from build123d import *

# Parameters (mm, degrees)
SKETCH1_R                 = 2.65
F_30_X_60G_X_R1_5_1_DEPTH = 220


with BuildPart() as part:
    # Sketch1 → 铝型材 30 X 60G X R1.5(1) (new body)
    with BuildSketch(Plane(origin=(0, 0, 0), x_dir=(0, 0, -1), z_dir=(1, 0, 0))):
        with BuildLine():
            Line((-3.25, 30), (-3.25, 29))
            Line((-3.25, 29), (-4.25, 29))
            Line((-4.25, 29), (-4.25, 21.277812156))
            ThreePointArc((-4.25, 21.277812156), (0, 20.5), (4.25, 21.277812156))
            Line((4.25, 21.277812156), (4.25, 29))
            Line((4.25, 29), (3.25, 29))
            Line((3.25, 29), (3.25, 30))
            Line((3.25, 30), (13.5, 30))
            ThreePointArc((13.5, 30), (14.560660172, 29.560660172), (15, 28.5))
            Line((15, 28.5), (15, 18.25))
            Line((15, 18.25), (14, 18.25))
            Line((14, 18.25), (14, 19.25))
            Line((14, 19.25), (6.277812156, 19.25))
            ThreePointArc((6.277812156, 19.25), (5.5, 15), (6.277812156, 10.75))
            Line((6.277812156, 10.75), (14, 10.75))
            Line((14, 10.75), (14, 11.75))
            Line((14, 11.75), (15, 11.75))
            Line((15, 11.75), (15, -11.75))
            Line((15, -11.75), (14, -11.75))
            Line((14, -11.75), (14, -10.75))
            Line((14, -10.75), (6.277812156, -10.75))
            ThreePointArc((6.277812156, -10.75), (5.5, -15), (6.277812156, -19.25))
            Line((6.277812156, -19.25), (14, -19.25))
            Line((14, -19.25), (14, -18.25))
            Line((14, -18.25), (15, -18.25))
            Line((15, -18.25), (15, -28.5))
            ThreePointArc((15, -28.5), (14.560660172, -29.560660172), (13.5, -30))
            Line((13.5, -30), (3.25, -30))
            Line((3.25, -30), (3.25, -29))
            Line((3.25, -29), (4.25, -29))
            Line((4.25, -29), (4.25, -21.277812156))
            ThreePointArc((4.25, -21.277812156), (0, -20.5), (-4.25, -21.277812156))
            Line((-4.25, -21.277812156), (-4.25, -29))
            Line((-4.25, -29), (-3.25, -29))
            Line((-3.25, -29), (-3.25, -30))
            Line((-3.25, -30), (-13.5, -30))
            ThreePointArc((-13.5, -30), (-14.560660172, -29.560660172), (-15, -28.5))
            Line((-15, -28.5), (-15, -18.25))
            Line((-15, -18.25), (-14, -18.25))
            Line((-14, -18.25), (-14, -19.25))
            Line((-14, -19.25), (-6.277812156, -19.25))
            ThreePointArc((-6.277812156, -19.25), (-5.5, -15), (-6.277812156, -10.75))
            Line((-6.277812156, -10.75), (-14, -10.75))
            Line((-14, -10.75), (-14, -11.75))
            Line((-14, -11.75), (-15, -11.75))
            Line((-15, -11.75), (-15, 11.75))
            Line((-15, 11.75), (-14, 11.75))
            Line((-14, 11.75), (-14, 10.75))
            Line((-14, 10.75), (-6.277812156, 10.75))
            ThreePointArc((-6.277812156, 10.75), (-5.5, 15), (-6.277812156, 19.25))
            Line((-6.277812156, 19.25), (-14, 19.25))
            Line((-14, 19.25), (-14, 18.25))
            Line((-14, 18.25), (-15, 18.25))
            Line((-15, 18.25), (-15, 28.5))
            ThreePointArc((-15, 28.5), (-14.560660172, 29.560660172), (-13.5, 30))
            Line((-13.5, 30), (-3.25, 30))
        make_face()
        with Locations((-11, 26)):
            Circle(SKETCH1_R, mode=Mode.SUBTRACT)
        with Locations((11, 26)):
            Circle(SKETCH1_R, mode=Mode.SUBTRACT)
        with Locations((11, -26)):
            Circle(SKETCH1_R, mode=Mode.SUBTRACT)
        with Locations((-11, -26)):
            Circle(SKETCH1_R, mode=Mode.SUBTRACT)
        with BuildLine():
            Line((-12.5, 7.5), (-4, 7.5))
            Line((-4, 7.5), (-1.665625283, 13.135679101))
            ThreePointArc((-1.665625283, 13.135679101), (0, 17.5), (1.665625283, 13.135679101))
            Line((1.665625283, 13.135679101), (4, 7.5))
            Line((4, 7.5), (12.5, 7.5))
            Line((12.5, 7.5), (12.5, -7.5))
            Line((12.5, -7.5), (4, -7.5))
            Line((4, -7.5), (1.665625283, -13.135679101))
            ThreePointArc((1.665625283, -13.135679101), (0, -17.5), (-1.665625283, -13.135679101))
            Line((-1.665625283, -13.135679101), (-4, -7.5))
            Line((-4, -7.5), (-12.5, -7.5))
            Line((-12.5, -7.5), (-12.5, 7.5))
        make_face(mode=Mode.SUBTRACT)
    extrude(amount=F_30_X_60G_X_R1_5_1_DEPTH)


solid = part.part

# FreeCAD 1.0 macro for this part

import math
import FreeCAD as App
import Part
import Sketcher
from FreeCAD import Vector
Q = App.Units.Quantity

doc = App.newDocument("Part")
params = doc.addObject("Spreadsheet::Sheet", "Params")
for row, (alias, value) in enumerate([
    ("sketch1_radius", "12 mm"),
    ("sketch1_diameter", "5.3 mm"),
    ("sketch1_radius2", "1.5 mm"),
    ("sketch1_radius3", "2.5 mm"),
    ("sketch1_width", "1 mm"),
    ("pad1_length", "220 mm"),
], start=1):
    params.set(f"A{row}", alias)
    params.set(f"B{row}", "=" + value)
    params.setAlias(f"B{row}", alias)

body = doc.addObject("PartDesign::Body", "Body")

# Sketch on YZ plane
sketch1 = body.newObject("Sketcher::SketchObject", "Sketch")
sketch1.AttachmentSupport = (doc.getObject("YZ_Plane"), [""])
sketch1.MapMode = "FlatFace"
sketch1.addGeometry([
    Part.LineSegment(Vector(29, 3.2, 0), Vector(30, 3.2, 0)),  # 0
    Part.LineSegment(Vector(30, 3.2, 0), Vector(30, 13.5, 0)),  # 1
    Part.ArcOfCircle(Part.Circle(Vector(28.5, 13.5, 0), Vector(0, 0, 1), 1.5), math.radians(0), math.radians(90)),  # 2
    Part.LineSegment(Vector(28.5, 15, 0), Vector(18.2, 15, 0)),  # 3
    Part.LineSegment(Vector(18.2, 15, 0), Vector(18.2, 14, 0)),  # 4
    Part.LineSegment(Vector(18.2, 14, 0), Vector(19.2, 14, 0)),  # 5
    Part.LineSegment(Vector(19.2, 14, 0), Vector(19.2, 6.3, 0)),  # 6
    Part.ArcOfCircle(Part.Circle(Vector(15, 17.5, 0), Vector(0, 0, 1), 12), math.radians(-111), math.radians(-69)),  # 7
    Part.LineSegment(Vector(10.8, 6.3, 0), Vector(10.8, 14, 0)),  # 8
    Part.LineSegment(Vector(10.8, 14, 0), Vector(11.8, 14, 0)),  # 9
    Part.LineSegment(Vector(11.8, 14, 0), Vector(11.8, 15, 0)),  # 10
    Part.LineSegment(Vector(11.8, 15, 0), Vector(-11.8, 15, 0)),  # 11
    Part.LineSegment(Vector(-11.8, 15, 0), Vector(-11.8, 14, 0)),  # 12
    Part.LineSegment(Vector(-11.8, 14, 0), Vector(-10.8, 14, 0)),  # 13
    Part.LineSegment(Vector(-10.8, 14, 0), Vector(-10.8, 6.3, 0)),  # 14
    Part.ArcOfCircle(Part.Circle(Vector(-15, 17.5, 0), Vector(0, 0, 1), 12), math.radians(-111), math.radians(-69)),  # 15
    Part.LineSegment(Vector(-19.2, 6.3, 0), Vector(-19.2, 14, 0)),  # 16
    Part.LineSegment(Vector(-19.2, 14, 0), Vector(-18.2, 14, 0)),  # 17
    Part.LineSegment(Vector(-18.2, 14, 0), Vector(-18.2, 15, 0)),  # 18
    Part.LineSegment(Vector(-18.2, 15, 0), Vector(-28.5, 15, 0)),  # 19
    Part.ArcOfCircle(Part.Circle(Vector(-28.5, 13.5, 0), Vector(0, 0, 1), 1.5), math.radians(90), math.radians(180)),  # 20
    Part.LineSegment(Vector(-30, 13.5, 0), Vector(-30, 3.2, 0)),  # 21
    Part.LineSegment(Vector(-30, 3.2, 0), Vector(-29, 3.2, 0)),  # 22
    Part.LineSegment(Vector(-29, 3.2, 0), Vector(-29, 4.2, 0)),  # 23
    Part.LineSegment(Vector(-29, 4.2, 0), Vector(-21.3, 4.2, 0)),  # 24
    Part.ArcOfCircle(Part.Circle(Vector(-32.5, 0, 0), Vector(0, 0, 1), 12), math.radians(-21), math.radians(21)),  # 25
    Part.LineSegment(Vector(-21.3, -4.2, 0), Vector(-29, -4.2, 0)),  # 26
    Part.LineSegment(Vector(-29, -4.2, 0), Vector(-29, -3.2, 0)),  # 27
    Part.LineSegment(Vector(-29, -3.2, 0), Vector(-30, -3.2, 0)),  # 28
    Part.LineSegment(Vector(-30, -3.2, 0), Vector(-30, -13.5, 0)),  # 29
    Part.ArcOfCircle(Part.Circle(Vector(-28.5, -13.5, 0), Vector(0, 0, 1), 1.5), math.radians(180), math.radians(270)),  # 30
    Part.LineSegment(Vector(-28.5, -15, 0), Vector(-18.2, -15, 0)),  # 31
    Part.LineSegment(Vector(-18.2, -15, 0), Vector(-18.2, -14, 0)),  # 32
    Part.LineSegment(Vector(-18.2, -14, 0), Vector(-19.2, -14, 0)),  # 33
    Part.LineSegment(Vector(-19.2, -14, 0), Vector(-19.2, -6.3, 0)),  # 34
    Part.ArcOfCircle(Part.Circle(Vector(-15, -17.5, 0), Vector(0, 0, 1), 12), math.radians(69), math.radians(111)),  # 35
    Part.LineSegment(Vector(-10.8, -6.3, 0), Vector(-10.8, -14, 0)),  # 36
    Part.LineSegment(Vector(-10.8, -14, 0), Vector(-11.8, -14, 0)),  # 37
    Part.LineSegment(Vector(-11.8, -14, 0), Vector(-11.8, -15, 0)),  # 38
    Part.LineSegment(Vector(-11.8, -15, 0), Vector(11.8, -15, 0)),  # 39
    Part.LineSegment(Vector(11.8, -15, 0), Vector(11.8, -14, 0)),  # 40
    Part.LineSegment(Vector(11.8, -14, 0), Vector(10.8, -14, 0)),  # 41
    Part.LineSegment(Vector(10.8, -14, 0), Vector(10.8, -6.3, 0)),  # 42
    Part.ArcOfCircle(Part.Circle(Vector(15, -17.5, 0), Vector(0, 0, 1), 12), math.radians(69), math.radians(111)),  # 43
    Part.LineSegment(Vector(19.2, -6.3, 0), Vector(19.2, -14, 0)),  # 44
    Part.LineSegment(Vector(19.2, -14, 0), Vector(18.2, -14, 0)),  # 45
    Part.LineSegment(Vector(18.2, -14, 0), Vector(18.2, -15, 0)),  # 46
    Part.LineSegment(Vector(18.2, -15, 0), Vector(28.5, -15, 0)),  # 47
    Part.ArcOfCircle(Part.Circle(Vector(28.5, -13.5, 0), Vector(0, 0, 1), 1.5), math.radians(-90), math.radians(0)),  # 48
    Part.LineSegment(Vector(30, -13.5, 0), Vector(30, -3.2, 0)),  # 49
    Part.LineSegment(Vector(30, -3.2, 0), Vector(29, -3.2, 0)),  # 50
    Part.LineSegment(Vector(29, -3.2, 0), Vector(29, -4.2, 0)),  # 51
    Part.LineSegment(Vector(29, -4.2, 0), Vector(21.3, -4.2, 0)),  # 52
    Part.ArcOfCircle(Part.Circle(Vector(32.5, 0, 0), Vector(0, 0, 1), 12), math.radians(159), math.radians(201)),  # 53
    Part.LineSegment(Vector(21.3, 4.2, 0), Vector(29, 4.2, 0)),  # 54
    Part.LineSegment(Vector(29, 4.2, 0), Vector(29, 3.2, 0)),  # 55
    Part.Circle(Vector(-26, -11, 0), Vector(0, 0, 1), 2.6),  # 56
    Part.Circle(Vector(-26, 11, 0), Vector(0, 0, 1), 2.6),  # 57
    Part.Circle(Vector(26, -11, 0), Vector(0, 0, 1), 2.6),  # 58
    Part.LineSegment(Vector(7.5, 12.5, 0), Vector(7.5, 4, 0)),  # 59
    Part.LineSegment(Vector(7.5, 4, 0), Vector(13.1, 1.7, 0)),  # 60
    Part.ArcOfCircle(Part.Circle(Vector(15, 0, 0), Vector(0, 0, 1), 2.5), math.radians(-138), math.radians(138)),  # 61
    Part.LineSegment(Vector(13.1, -1.7, 0), Vector(7.5, -4, 0)),  # 62
    Part.LineSegment(Vector(7.5, -4, 0), Vector(7.5, -12.5, 0)),  # 63
    Part.LineSegment(Vector(7.5, -12.5, 0), Vector(-7.5, -12.5, 0)),  # 64
    Part.LineSegment(Vector(-7.5, -12.5, 0), Vector(-7.5, -4, 0)),  # 65
    Part.LineSegment(Vector(-7.5, -4, 0), Vector(-13.1, -1.7, 0)),  # 66
    Part.ArcOfCircle(Part.Circle(Vector(-15, 0, 0), Vector(0, 0, 1), 2.5), math.radians(42), math.radians(318)),  # 67
    Part.LineSegment(Vector(-13.1, 1.7, 0), Vector(-7.5, 4, 0)),  # 68
    Part.LineSegment(Vector(-7.5, 4, 0), Vector(-7.5, 12.5, 0)),  # 69
    Part.LineSegment(Vector(-7.5, 12.5, 0), Vector(7.5, 12.5, 0)),  # 70
    Part.Circle(Vector(26, 11, 0), Vector(0, 0, 1), 2.6),  # 71
], False)
sketch1.addConstraint([
    Sketcher.Constraint("Coincident", 0, 2, 1, 1),
    Sketcher.Constraint("Tangent", 1, 2, 2, 1),
    Sketcher.Constraint("Tangent", 2, 2, 3, 1),
    Sketcher.Constraint("Coincident", 3, 2, 4, 1),
    Sketcher.Constraint("Coincident", 4, 2, 5, 1),
    Sketcher.Constraint("Coincident", 5, 2, 6, 1),
    Sketcher.Constraint("Coincident", 6, 2, 7, 2),
    Sketcher.Constraint("Coincident", 7, 1, 8, 1),
    Sketcher.Constraint("Coincident", 8, 2, 9, 1),
    Sketcher.Constraint("Coincident", 9, 2, 10, 1),
    Sketcher.Constraint("Coincident", 10, 2, 11, 1),
    Sketcher.Constraint("Coincident", 11, 2, 12, 1),
    Sketcher.Constraint("Coincident", 12, 2, 13, 1),
    Sketcher.Constraint("Coincident", 13, 2, 14, 1),
    Sketcher.Constraint("Coincident", 14, 2, 15, 2),
    Sketcher.Constraint("Coincident", 15, 1, 16, 1),
    Sketcher.Constraint("Coincident", 16, 2, 17, 1),
    Sketcher.Constraint("Coincident", 17, 2, 18, 1),
    Sketcher.Constraint("Coincident", 18, 2, 19, 1),
    Sketcher.Constraint("Tangent", 19, 2, 20, 1),
    Sketcher.Constraint("Tangent", 20, 2, 21, 1),
    Sketcher.Constraint("Coincident", 21, 2, 22, 1),
    Sketcher.Constraint("Coincident", 22, 2, 23, 1),
    Sketcher.Constraint("Coincident", 23, 2, 24, 1),
    Sketcher.Constraint("Coincident", 24, 2, 25, 2),
    Sketcher.Constraint("Coincident", 25, 1, 26, 1),
    Sketcher.Constraint("Coincident", 26, 2, 27, 1),
    Sketcher.Constraint("Coincident", 27, 2, 28, 1),
    Sketcher.Constraint("Coincident", 28, 2, 29, 1),
    Sketcher.Constraint("Tangent", 29, 2, 30, 1),
    Sketcher.Constraint("Tangent", 30, 2, 31, 1),
    Sketcher.Constraint("Coincident", 31, 2, 32, 1),
    Sketcher.Constraint("Coincident", 32, 2, 33, 1),
    Sketcher.Constraint("Coincident", 33, 2, 34, 1),
    Sketcher.Constraint("Coincident", 34, 2, 35, 2),
    Sketcher.Constraint("Coincident", 35, 1, 36, 1),
    Sketcher.Constraint("Coincident", 36, 2, 37, 1),
    Sketcher.Constraint("Coincident", 37, 2, 38, 1),
    Sketcher.Constraint("Coincident", 38, 2, 39, 1),
    Sketcher.Constraint("Coincident", 39, 2, 40, 1),
    Sketcher.Constraint("Coincident", 40, 2, 41, 1),
    Sketcher.Constraint("Coincident", 41, 2, 42, 1),
    Sketcher.Constraint("Coincident", 42, 2, 43, 2),
    Sketcher.Constraint("Coincident", 43, 1, 44, 1),
    Sketcher.Constraint("Coincident", 44, 2, 45, 1),
    Sketcher.Constraint("Coincident", 45, 2, 46, 1),
    Sketcher.Constraint("Coincident", 46, 2, 47, 1),
    Sketcher.Constraint("Tangent", 47, 2, 48, 1),
    Sketcher.Constraint("Tangent", 48, 2, 49, 1),
    Sketcher.Constraint("Coincident", 49, 2, 50, 1),
    Sketcher.Constraint("Coincident", 50, 2, 51, 1),
    Sketcher.Constraint("Coincident", 51, 2, 52, 1),
    Sketcher.Constraint("Coincident", 52, 2, 53, 2),
    Sketcher.Constraint("Coincident", 53, 1, 54, 1),
    Sketcher.Constraint("Coincident", 54, 2, 55, 1),
    Sketcher.Constraint("Coincident", 55, 2, 0, 1),
    Sketcher.Constraint("Coincident", 59, 2, 60, 1),
    Sketcher.Constraint("Coincident", 60, 2, 61, 2),
    Sketcher.Constraint("Coincident", 61, 1, 62, 1),
    Sketcher.Constraint("Coincident", 62, 2, 63, 1),
    Sketcher.Constraint("Coincident", 63, 2, 64, 1),
    Sketcher.Constraint("Coincident", 64, 2, 65, 1),
    Sketcher.Constraint("Coincident", 65, 2, 66, 1),
    Sketcher.Constraint("Coincident", 66, 2, 67, 2),
    Sketcher.Constraint("Coincident", 67, 1, 68, 1),
    Sketcher.Constraint("Coincident", 68, 2, 69, 1),
    Sketcher.Constraint("Coincident", 69, 2, 70, 1),
    Sketcher.Constraint("Coincident", 70, 2, 59, 1),
    Sketcher.Constraint("Horizontal", 0),
    Sketcher.Constraint("Vertical", 1),
    Sketcher.Constraint("Horizontal", 3),
    Sketcher.Constraint("Vertical", 4),
    Sketcher.Constraint("Horizontal", 5),
    Sketcher.Constraint("Vertical", 6),
    Sketcher.Constraint("Vertical", 8),
    Sketcher.Constraint("Horizontal", 9),
    Sketcher.Constraint("Vertical", 10),
    Sketcher.Constraint("Horizontal", 11),
    Sketcher.Constraint("Vertical", 12),
    Sketcher.Constraint("Horizontal", 13),
    Sketcher.Constraint("Vertical", 14),
    Sketcher.Constraint("Vertical", 16),
    Sketcher.Constraint("Horizontal", 17),
    Sketcher.Constraint("Vertical", 18),
    Sketcher.Constraint("Horizontal", 19),
    Sketcher.Constraint("Vertical", 21),
    Sketcher.Constraint("Horizontal", 22),
    Sketcher.Constraint("Vertical", 23),
    Sketcher.Constraint("Horizontal", 24),
    Sketcher.Constraint("Horizontal", 26),
    Sketcher.Constraint("Vertical", 27),
    Sketcher.Constraint("Horizontal", 28),
    Sketcher.Constraint("Vertical", 29),
    Sketcher.Constraint("Horizontal", 31),
    Sketcher.Constraint("Vertical", 32),
    Sketcher.Constraint("Horizontal", 33),
    Sketcher.Constraint("Vertical", 34),
    Sketcher.Constraint("Vertical", 36),
    Sketcher.Constraint("Horizontal", 37),
    Sketcher.Constraint("Vertical", 38),
    Sketcher.Constraint("Horizontal", 39),
    Sketcher.Constraint("Vertical", 40),
    Sketcher.Constraint("Horizontal", 41),
    Sketcher.Constraint("Vertical", 42),
    Sketcher.Constraint("Vertical", 44),
    Sketcher.Constraint("Horizontal", 45),
    Sketcher.Constraint("Vertical", 46),
    Sketcher.Constraint("Horizontal", 47),
    Sketcher.Constraint("Vertical", 49),
    Sketcher.Constraint("Horizontal", 50),
    Sketcher.Constraint("Vertical", 51),
    Sketcher.Constraint("Horizontal", 52),
    Sketcher.Constraint("Horizontal", 54),
    Sketcher.Constraint("Vertical", 55),
    Sketcher.Constraint("Vertical", 59),
    Sketcher.Constraint("Vertical", 63),
    Sketcher.Constraint("Horizontal", 64),
    Sketcher.Constraint("Vertical", 65),
    Sketcher.Constraint("Vertical", 69),
    Sketcher.Constraint("Horizontal", 70),
    Sketcher.Constraint("Equal", 7, 15),
    Sketcher.Constraint("Equal", 2, 20),
    Sketcher.Constraint("Equal", 15, 25),
    Sketcher.Constraint("Equal", 20, 30),
    Sketcher.Constraint("Equal", 25, 35),
    Sketcher.Constraint("Equal", 35, 43),
    Sketcher.Constraint("Equal", 30, 48),
    Sketcher.Constraint("Equal", 43, 53),
    Sketcher.Constraint("Equal", 56, 57),
    Sketcher.Constraint("Equal", 57, 58),
    Sketcher.Constraint("Equal", 61, 67),
    Sketcher.Constraint("Equal", 58, 71),
    Sketcher.Constraint("Symmetric", 2, 3, 30, 3, -1, 1),
    Sketcher.Constraint("Symmetric", 7, 3, 35, 3, -1, 1),
    Sketcher.Constraint("Symmetric", 15, 3, 43, 3, -1, 1),
    Sketcher.Constraint("Symmetric", 20, 3, 48, 3, -1, 1),
    Sketcher.Constraint("Symmetric", 25, 3, 53, 3, -1, 1),
    Sketcher.Constraint("Symmetric", 57, 3, 58, 3, -1, 1),
    Sketcher.Constraint("Symmetric", 61, 3, 67, 3, -1, 1),
    Sketcher.Constraint("Symmetric", 56, 3, 71, 3, -1, 1),
    Sketcher.Constraint("Symmetric", 4, 2, 32, 2, -1, 1),
    Sketcher.Constraint("Symmetric", 8, 2, 36, 2, -1, 1),
    Sketcher.Constraint("Symmetric", 10, 2, 38, 2, -1, 1),
    Sketcher.Constraint("Symmetric", 12, 2, 40, 2, -1, 1),
    Sketcher.Constraint("Symmetric", 16, 2, 44, 2, -1, 1),
    Sketcher.Constraint("Symmetric", 22, 2, 50, 2, -1, 1),
    Sketcher.Constraint("Symmetric", 26, 2, 54, 2, -1, 1),
    Sketcher.Constraint("Symmetric", 59, 2, 65, 2, -1, 1),
    Sketcher.Constraint("Symmetric", 62, 2, 68, 2, -1, 1),
    Sketcher.Constraint("Symmetric", 7, 3, 15, 3, -2),
    Sketcher.Constraint("Symmetric", 2, 3, 20, 3, -2),
    Sketcher.Constraint("Symmetric", 56, 3, 58, 3, -2),
    Sketcher.Constraint("Symmetric", 9, 2, 12, 2, -2),
    Sketcher.Constraint("Symmetric", 5, 2, 16, 2, -2),
    Sketcher.Constraint("Symmetric", 27, 2, 50, 2, -2),
    Sketcher.Constraint("Symmetric", 25, 1, 52, 2, -2),
    Sketcher.Constraint("Symmetric", 62, 2, 65, 2, -2),
    Sketcher.Constraint("Symmetric", 61, 1, 66, 2, -2),
    Sketcher.Constraint("Parallel", 60, 66),
    Sketcher.Constraint("Parallel", 62, 68),
    Sketcher.Constraint("Horizontal", 6, 2, 7, 1),
    Sketcher.Constraint("Horizontal", 5, 2, 8, 2),
    Sketcher.Constraint("Horizontal", 3, 2, 10, 2),
    Sketcher.Constraint("Horizontal", 7, 1, 14, 2),
    Sketcher.Constraint("Horizontal", 0, 2, 21, 2),
    Sketcher.Constraint("Horizontal", 34, 2, 35, 1),
    Sketcher.Constraint("Horizontal", 35, 1, 42, 2),
    Sketcher.Constraint("Horizontal", 24, 2, 53, 1),
    Sketcher.Constraint("Vertical", 43, 3, 61, 3),
    Sketcher.Constraint("Vertical", 18, 2, 31, 2),
    Sketcher.Constraint("Vertical", 4, 2, 45, 2),
    Sketcher.Constraint("Equal", 0, 5),
    Sketcher.Constraint("Equal", 5, 9),
    Sketcher.Constraint("Equal", 47, 1),
    Sketcher.Constraint("Equal", 50, 4),
    Sketcher.Constraint("Equal", 54, 6),
    Sketcher.Constraint("Equal", 18, 23),
    Sketcher.Constraint("Equal", 59, 63),
    Sketcher.Constraint("Radius", 7, 12.0),
    Sketcher.Constraint("Diameter", 56, 5.3),
    Sketcher.Constraint("Radius", 2, 1.5),
    Sketcher.Constraint("Radius", 61, 2.5),
    Sketcher.Constraint("DistanceX", 0, 1, 0, 2, 1.0),
    Sketcher.Constraint("DistanceX", 64, 2, 64, 1, 15.0),
    Sketcher.Constraint("DistanceX", 11, 2, 11, 1, 23.5),
    Sketcher.Constraint("DistanceY", 59, 2, 59, 1, 8.5),
    Sketcher.Constraint("DistanceX", -1, 1, 7, 3, 15.0),
    Sketcher.Constraint("DistanceX", 56, 3, -1, 1, 26.0),
    Sketcher.Constraint("DistanceY", 56, 3, -1, 1, 11.0),
    Sketcher.Constraint("DistanceX", -1, 1, 0, 2, 30.0),
    Sketcher.Constraint("DistanceY", -1, 1, 2, 2, 15.0),
    Sketcher.Constraint("DistanceY", -1, 1, 59, 2, 4.0),
    Sketcher.Constraint("Angle", 60, Q("-22.5 deg")),
    Sketcher.Constraint("DistanceY", -1, 1, 7, 3, 17.5),
])
sketch1.setExpression("Constraints[178]", "Params.sketch1_radius")
sketch1.setExpression("Constraints[179]", "Params.sketch1_diameter")
sketch1.setExpression("Constraints[180]", "Params.sketch1_radius2")
sketch1.setExpression("Constraints[181]", "Params.sketch1_radius3")
sketch1.setExpression("Constraints[182]", "Params.sketch1_width")
pad1 = body.newObject("PartDesign::Pad", "Pad")
pad1.Profile = sketch1
pad1.setExpression("Length", "Params.pad1_length")

doc.recompute()
